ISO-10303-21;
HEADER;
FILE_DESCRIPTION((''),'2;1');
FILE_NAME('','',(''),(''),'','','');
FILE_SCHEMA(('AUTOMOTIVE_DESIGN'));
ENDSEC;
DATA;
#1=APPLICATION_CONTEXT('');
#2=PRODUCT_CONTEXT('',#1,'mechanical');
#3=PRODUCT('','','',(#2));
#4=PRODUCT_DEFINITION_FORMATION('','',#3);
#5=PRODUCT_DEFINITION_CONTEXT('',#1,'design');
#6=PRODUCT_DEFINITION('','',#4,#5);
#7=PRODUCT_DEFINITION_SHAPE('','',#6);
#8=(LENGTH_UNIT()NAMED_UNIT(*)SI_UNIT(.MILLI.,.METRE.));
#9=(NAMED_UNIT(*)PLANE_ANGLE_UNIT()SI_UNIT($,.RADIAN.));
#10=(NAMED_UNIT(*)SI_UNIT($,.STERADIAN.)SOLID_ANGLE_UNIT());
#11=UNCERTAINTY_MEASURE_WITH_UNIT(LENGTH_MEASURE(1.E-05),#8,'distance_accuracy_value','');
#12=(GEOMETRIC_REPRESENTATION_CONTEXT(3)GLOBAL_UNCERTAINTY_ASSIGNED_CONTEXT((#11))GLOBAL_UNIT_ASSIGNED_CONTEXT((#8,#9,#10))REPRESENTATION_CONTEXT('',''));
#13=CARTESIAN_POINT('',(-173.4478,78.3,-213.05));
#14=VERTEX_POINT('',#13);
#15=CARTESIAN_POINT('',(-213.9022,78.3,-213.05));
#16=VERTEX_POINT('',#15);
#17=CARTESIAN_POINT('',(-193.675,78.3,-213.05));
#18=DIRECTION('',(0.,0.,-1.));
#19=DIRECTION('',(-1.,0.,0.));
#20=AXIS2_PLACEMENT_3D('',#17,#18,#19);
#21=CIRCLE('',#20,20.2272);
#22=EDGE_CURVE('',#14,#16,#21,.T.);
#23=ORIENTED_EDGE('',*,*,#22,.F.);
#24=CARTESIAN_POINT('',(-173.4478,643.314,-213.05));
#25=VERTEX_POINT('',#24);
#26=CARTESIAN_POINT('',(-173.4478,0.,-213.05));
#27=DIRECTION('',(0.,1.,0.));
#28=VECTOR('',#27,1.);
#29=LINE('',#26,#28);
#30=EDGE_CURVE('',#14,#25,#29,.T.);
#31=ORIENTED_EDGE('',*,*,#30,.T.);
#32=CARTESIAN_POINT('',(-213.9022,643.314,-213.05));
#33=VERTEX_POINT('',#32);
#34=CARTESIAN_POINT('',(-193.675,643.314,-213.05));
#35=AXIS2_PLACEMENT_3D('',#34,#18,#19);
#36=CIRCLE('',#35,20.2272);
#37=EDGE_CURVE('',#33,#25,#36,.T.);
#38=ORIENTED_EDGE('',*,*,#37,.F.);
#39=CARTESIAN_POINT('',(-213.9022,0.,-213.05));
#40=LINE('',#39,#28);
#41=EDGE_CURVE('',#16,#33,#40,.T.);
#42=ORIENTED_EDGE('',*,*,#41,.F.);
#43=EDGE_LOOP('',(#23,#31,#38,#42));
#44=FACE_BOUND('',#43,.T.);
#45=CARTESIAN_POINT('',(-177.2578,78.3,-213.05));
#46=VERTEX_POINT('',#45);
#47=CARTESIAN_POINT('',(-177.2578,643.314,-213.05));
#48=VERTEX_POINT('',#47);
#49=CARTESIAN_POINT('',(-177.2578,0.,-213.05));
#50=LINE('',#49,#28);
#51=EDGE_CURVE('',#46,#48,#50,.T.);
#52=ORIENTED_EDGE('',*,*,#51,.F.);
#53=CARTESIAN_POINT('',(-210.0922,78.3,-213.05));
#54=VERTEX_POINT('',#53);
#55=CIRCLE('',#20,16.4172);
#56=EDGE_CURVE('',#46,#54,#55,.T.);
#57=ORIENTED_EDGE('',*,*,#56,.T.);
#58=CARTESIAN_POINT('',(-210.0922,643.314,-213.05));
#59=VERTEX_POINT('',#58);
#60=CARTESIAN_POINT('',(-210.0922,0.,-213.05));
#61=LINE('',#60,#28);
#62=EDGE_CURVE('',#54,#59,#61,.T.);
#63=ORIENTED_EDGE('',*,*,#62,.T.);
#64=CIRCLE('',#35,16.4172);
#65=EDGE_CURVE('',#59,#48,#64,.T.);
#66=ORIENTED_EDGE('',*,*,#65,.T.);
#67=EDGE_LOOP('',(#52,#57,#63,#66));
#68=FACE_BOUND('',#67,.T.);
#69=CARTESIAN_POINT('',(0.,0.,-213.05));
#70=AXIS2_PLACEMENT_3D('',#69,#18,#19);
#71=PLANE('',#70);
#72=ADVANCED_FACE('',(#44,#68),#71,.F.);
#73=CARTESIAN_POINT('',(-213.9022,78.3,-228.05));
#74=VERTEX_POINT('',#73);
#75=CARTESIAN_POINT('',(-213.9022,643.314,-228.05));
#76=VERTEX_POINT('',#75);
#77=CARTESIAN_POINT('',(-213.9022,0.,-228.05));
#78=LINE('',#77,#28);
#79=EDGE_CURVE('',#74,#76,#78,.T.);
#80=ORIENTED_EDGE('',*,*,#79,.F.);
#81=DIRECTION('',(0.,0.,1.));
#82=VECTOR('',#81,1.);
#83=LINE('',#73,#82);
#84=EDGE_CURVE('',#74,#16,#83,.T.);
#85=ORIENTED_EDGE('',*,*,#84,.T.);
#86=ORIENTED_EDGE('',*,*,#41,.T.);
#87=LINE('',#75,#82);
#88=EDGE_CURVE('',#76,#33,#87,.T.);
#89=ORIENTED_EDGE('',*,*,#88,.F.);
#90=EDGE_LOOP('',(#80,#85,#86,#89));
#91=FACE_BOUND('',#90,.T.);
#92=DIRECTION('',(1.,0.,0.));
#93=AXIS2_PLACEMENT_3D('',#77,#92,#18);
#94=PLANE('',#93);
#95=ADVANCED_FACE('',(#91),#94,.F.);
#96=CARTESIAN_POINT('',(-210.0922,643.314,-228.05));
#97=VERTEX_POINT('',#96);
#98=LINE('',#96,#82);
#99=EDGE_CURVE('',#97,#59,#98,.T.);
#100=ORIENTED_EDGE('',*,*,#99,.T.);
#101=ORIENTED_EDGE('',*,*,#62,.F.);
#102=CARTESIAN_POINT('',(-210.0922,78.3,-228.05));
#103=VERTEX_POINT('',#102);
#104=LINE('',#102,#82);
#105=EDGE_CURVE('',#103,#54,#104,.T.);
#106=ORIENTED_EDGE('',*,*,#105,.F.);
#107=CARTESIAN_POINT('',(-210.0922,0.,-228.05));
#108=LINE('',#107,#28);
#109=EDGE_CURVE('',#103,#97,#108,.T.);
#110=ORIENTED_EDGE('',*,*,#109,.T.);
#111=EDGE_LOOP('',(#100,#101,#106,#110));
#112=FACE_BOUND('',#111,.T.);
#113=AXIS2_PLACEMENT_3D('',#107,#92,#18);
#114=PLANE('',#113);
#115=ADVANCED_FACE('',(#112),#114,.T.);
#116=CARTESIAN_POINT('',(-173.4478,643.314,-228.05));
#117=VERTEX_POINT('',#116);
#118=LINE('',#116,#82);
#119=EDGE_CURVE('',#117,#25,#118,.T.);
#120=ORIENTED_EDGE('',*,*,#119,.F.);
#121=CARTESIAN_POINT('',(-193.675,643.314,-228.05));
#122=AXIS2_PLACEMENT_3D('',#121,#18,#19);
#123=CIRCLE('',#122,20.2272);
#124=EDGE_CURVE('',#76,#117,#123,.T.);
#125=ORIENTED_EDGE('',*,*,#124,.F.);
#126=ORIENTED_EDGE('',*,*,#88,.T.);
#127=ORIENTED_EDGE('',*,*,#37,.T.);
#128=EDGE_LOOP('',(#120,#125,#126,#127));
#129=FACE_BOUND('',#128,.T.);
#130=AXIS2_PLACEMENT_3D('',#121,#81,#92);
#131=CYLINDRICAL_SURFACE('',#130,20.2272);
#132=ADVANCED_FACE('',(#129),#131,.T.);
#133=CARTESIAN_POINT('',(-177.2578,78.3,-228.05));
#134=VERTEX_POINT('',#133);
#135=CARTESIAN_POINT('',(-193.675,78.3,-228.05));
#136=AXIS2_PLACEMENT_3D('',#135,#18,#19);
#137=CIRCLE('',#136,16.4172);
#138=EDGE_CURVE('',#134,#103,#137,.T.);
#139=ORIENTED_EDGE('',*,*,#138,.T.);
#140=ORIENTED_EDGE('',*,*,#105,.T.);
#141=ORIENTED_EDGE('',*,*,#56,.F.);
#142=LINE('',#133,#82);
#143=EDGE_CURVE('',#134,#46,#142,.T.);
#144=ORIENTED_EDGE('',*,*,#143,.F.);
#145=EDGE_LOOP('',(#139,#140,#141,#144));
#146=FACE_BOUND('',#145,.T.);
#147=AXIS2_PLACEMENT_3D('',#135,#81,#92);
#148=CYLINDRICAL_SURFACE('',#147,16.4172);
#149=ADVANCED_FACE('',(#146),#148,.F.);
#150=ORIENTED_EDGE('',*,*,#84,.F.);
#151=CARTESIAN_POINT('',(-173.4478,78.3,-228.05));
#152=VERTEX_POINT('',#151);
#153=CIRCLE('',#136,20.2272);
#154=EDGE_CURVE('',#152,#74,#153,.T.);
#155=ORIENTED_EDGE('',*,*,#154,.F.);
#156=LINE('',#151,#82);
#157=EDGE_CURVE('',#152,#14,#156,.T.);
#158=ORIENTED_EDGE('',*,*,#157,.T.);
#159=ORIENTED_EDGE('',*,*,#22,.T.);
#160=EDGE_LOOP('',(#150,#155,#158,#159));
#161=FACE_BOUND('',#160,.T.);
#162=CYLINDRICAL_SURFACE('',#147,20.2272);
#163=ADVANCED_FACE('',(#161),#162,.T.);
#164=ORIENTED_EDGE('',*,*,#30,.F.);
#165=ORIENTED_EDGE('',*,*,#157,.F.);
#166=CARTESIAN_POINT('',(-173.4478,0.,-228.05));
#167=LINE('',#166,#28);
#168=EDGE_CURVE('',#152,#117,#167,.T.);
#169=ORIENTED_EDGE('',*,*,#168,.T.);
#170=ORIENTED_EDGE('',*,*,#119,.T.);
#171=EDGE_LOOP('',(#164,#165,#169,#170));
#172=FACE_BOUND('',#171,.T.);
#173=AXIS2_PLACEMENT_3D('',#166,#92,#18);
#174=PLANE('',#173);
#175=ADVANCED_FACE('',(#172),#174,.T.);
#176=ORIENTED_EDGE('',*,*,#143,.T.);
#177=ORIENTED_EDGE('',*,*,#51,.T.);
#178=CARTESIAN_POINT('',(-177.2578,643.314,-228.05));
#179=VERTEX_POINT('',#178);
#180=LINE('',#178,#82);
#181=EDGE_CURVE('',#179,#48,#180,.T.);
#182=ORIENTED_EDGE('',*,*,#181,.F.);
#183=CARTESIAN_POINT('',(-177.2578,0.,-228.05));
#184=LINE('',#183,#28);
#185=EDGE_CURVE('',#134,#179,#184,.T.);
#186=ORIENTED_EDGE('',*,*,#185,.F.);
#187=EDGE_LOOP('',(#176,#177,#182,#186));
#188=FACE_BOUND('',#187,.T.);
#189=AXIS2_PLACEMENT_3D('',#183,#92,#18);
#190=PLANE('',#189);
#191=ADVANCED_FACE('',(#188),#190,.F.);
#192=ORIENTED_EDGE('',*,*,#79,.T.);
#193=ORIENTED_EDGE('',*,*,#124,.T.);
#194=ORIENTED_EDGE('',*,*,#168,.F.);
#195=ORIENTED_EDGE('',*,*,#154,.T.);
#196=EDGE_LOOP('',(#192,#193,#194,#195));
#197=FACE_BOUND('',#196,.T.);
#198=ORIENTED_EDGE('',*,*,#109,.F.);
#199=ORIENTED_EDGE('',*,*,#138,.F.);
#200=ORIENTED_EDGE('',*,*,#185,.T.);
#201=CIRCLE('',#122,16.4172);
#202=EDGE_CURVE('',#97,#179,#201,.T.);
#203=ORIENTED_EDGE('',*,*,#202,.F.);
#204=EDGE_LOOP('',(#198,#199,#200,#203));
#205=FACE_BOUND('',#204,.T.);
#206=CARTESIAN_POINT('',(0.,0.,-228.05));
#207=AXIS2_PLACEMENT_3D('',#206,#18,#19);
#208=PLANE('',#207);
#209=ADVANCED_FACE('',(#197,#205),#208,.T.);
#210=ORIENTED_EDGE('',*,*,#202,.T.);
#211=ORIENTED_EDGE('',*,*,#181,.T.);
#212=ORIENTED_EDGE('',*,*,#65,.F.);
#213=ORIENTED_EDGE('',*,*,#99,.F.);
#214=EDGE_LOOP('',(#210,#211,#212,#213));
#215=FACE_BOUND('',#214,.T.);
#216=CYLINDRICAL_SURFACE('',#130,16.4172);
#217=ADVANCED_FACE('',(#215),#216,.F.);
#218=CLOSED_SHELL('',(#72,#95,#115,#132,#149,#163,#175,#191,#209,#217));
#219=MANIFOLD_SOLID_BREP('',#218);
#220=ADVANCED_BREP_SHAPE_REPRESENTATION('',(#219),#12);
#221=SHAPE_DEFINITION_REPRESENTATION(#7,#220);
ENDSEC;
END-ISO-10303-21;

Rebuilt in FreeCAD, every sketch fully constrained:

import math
import FreeCAD as App
import Part
import Sketcher

V = App.Vector

doc = App.newDocument("Part")
params = doc.addObject("Spreadsheet::Sheet", "Params")
for row, (alias, value) in enumerate([
    ("pad1_length", "15 mm"),
], start=1):
    params.set(f"A{row}", alias)
    params.set(f"B{row}", "=" + value)
    params.setAlias(f"B{row}", alias)

body = doc.addObject("PartDesign::Body", "Body")

sketch1 = body.newObject("Sketcher::SketchObject", "Sketch")
sketch1.AttachmentSupport = (doc.getObject("XY_Plane"), [""])
sketch1.MapMode = "FlatFace"
sketch1.AttachmentOffset = App.Placement(V(0, 0, -220.55), App.Rotation())
sketch1.addGeometry(Part.LineSegment(V(-173, 643, 0), V(-173, 78, 0)), False)
sketch1.addGeometry(Part.ArcOfCircle(Part.Circle(V(-194, 78, 0), V(0, 0, 1), 20), math.radians(180), math.radians(360)), False)
sketch1.addGeometry(Part.LineSegment(V(-214, 78, 0), V(-214, 643, 0)), False)
sketch1.addGeometry(Part.ArcOfCircle(Part.Circle(V(-194, 643, 0), V(0, 0, 1), 20), math.radians(0), math.radians(180)), False)
sketch1.addGeometry(Part.LineSegment(V(-177, 78, 0), V(-177, 643, 0)), False)
sketch1.addGeometry(Part.ArcOfCircle(Part.Circle(V(-194, 643, 0), V(0, 0, 1), 16), math.radians(0), math.radians(180)), False)
sketch1.addGeometry(Part.LineSegment(V(-210, 643, 0), V(-210, 78, 0)), False)
sketch1.addGeometry(Part.ArcOfCircle(Part.Circle(V(-194, 78, 0), V(0, 0, 1), 16), math.radians(180), math.radians(360)), False)
sketch1.addConstraint(Sketcher.Constraint("Tangent", 0, 2, 1, 2))
sketch1.addConstraint(Sketcher.Constraint("Tangent", 1, 1, 2, 1))
sketch1.addConstraint(Sketcher.Constraint("Tangent", 2, 2, 3, 2))
sketch1.addConstraint(Sketcher.Constraint("Tangent", 3, 1, 0, 1))
sketch1.addConstraint(Sketcher.Constraint("Tangent", 4, 2, 5, 1))
sketch1.addConstraint(Sketcher.Constraint("Tangent", 5, 2, 6, 1))
sketch1.addConstraint(Sketcher.Constraint("Tangent", 6, 2, 7, 1))
sketch1.addConstraint(Sketcher.Constraint("Tangent", 7, 2, 4, 1))
sketch1.addConstraint(Sketcher.Constraint("Vertical", 0))
sketch1.addConstraint(Sketcher.Constraint("Vertical", 2))
sketch1.addConstraint(Sketcher.Constraint("Vertical", 4))
sketch1.addConstraint(Sketcher.Constraint("Vertical", 6))
sketch1.addConstraint(Sketcher.Constraint("Coincident", 5, 3, 3, 3))
sketch1.addConstraint(Sketcher.Constraint("Horizontal", 7, 3, 0, 2))
sketch1.addConstraint(Sketcher.Constraint("DistanceY", -1, 1, 1, 3, 78.3))
sketch1.addConstraint(Sketcher.Constraint("Radius", 1, 20.2272))
sketch1.addConstraint(Sketcher.Constraint("Radius", 5, 16.4172))
sketch1.addConstraint(Sketcher.Constraint("DistanceY", 0, 2, 0, 1, 565.014))
sketch1.addConstraint(Sketcher.Constraint("DistanceX", 1, 3, -1, 1, 193.675))
pad1 = body.newObject("PartDesign::Pad", "Pad")
pad1.Profile = sketch1
pad1.setExpression("Length", "Params.pad1_length")
pad1.Midplane = True

doc.recompute()
